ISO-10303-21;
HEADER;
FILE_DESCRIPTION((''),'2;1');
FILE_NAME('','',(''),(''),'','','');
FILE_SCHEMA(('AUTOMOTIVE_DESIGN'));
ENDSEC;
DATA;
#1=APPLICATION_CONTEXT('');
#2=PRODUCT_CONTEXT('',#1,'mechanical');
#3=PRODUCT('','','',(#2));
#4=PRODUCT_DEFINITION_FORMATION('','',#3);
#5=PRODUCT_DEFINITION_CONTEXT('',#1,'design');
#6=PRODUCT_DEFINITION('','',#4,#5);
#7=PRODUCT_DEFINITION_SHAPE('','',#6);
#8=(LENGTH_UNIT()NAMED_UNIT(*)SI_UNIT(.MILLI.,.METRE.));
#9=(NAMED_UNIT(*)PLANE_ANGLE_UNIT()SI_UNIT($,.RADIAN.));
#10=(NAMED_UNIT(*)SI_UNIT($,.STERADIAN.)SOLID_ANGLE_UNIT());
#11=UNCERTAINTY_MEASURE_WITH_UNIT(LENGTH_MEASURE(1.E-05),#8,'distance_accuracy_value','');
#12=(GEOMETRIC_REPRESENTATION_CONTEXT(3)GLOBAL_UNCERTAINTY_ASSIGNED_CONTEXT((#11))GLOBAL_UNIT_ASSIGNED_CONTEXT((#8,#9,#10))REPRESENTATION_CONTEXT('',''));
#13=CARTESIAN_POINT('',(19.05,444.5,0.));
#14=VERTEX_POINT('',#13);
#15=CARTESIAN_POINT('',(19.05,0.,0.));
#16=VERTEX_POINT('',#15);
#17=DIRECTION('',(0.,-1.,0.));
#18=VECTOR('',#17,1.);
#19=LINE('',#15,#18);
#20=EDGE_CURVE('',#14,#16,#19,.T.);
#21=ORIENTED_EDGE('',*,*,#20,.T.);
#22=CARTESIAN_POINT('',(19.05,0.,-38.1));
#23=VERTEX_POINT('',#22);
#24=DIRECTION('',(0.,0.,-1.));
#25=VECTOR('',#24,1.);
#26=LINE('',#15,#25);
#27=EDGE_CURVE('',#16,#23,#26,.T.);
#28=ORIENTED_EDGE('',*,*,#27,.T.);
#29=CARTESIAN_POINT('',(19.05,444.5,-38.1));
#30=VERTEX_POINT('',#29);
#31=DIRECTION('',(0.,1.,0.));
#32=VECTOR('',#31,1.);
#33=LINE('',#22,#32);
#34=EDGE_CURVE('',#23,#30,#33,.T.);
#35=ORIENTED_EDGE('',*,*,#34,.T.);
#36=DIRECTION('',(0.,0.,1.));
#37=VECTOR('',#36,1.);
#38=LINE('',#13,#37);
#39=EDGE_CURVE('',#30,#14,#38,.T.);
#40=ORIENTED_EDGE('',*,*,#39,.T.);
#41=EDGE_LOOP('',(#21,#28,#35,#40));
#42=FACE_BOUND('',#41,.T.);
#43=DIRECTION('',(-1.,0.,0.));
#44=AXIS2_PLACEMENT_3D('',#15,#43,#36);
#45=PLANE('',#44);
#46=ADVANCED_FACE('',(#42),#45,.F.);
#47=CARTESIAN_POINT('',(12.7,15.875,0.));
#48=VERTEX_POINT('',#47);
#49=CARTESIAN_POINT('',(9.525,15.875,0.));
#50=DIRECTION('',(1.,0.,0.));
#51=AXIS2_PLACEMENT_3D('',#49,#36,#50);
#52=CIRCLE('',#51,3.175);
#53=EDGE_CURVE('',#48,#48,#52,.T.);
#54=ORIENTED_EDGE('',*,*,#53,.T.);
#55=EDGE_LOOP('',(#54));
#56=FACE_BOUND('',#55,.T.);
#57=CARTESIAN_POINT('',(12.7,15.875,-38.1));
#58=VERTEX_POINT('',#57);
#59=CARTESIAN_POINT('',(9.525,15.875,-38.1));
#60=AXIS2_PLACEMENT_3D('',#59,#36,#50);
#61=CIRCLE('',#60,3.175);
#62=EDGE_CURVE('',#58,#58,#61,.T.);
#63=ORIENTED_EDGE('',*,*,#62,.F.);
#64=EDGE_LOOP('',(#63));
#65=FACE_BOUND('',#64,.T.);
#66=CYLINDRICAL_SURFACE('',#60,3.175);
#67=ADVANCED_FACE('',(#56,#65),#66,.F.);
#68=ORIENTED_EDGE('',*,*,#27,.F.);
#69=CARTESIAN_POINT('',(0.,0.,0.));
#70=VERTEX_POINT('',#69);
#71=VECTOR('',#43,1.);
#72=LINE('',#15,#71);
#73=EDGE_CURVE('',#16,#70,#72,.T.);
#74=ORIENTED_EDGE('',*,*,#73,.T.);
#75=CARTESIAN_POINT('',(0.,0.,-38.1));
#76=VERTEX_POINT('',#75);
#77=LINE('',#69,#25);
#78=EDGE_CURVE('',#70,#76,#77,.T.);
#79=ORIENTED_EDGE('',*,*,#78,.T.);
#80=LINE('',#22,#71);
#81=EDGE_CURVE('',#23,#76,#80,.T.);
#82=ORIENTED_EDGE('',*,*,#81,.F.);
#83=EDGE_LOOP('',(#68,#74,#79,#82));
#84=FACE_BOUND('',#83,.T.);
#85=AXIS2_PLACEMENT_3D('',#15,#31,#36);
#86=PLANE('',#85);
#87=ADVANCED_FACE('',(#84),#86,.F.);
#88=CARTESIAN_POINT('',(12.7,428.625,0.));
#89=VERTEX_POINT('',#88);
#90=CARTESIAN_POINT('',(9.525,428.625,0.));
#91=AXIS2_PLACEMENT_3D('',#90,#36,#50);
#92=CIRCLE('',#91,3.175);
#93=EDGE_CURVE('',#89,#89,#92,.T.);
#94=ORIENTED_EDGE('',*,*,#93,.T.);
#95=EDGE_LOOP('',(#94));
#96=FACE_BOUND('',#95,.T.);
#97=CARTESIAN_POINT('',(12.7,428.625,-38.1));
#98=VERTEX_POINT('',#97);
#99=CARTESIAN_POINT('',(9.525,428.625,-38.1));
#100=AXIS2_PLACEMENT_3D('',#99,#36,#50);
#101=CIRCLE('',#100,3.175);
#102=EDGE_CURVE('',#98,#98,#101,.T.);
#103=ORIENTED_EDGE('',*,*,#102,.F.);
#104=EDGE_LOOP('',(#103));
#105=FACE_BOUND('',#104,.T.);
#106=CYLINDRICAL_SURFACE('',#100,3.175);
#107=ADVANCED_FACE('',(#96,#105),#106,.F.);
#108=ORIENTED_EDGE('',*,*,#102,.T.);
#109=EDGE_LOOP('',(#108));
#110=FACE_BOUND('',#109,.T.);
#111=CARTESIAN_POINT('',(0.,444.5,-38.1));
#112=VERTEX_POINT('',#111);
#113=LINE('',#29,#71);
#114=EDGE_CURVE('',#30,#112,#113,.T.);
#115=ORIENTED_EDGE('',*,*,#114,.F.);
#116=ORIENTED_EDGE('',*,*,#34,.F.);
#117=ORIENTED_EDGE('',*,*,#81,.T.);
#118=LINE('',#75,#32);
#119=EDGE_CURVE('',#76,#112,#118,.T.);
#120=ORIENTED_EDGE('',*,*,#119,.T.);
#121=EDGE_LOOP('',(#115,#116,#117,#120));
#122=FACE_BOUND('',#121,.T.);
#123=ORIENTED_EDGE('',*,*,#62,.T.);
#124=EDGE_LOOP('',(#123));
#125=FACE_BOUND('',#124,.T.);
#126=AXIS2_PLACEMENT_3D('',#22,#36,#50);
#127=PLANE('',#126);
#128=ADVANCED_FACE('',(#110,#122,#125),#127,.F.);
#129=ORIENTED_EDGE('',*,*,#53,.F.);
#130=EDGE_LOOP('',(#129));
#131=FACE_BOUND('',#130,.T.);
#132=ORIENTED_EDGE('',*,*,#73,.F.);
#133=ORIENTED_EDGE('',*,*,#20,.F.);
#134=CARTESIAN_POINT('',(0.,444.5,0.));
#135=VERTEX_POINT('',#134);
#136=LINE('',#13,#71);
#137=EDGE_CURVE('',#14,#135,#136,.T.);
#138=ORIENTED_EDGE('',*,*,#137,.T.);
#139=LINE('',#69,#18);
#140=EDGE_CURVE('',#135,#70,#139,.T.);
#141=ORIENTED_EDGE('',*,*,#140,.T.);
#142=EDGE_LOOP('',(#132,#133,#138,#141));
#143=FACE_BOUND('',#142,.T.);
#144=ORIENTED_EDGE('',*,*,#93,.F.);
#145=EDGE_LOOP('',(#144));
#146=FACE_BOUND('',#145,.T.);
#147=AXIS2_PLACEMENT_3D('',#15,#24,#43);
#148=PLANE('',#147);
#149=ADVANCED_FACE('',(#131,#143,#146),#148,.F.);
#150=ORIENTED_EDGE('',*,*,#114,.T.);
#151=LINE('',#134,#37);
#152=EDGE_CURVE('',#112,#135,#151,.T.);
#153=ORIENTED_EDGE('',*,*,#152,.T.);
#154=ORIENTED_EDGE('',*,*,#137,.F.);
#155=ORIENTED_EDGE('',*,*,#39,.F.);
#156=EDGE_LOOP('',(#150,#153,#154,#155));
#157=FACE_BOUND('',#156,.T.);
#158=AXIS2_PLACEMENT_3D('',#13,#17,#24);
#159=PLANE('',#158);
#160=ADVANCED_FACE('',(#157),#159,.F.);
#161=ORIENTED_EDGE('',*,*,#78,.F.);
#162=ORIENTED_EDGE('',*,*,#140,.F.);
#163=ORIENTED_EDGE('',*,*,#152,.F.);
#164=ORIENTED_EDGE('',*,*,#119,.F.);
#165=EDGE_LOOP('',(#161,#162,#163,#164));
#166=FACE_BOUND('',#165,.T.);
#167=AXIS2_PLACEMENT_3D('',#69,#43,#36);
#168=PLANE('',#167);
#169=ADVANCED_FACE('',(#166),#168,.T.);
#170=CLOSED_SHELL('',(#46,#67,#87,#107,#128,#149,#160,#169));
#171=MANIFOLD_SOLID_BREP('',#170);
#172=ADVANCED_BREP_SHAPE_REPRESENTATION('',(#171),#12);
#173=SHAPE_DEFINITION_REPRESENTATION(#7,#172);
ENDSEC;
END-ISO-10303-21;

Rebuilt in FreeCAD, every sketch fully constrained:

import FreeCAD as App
import Part
import Sketcher
Q = App.Units.Quantity


def add_polygon(sketch, points):
    """Adds a closed chain of lines whose ends are joined by coincident constraints."""
    first, n = sketch.GeometryCount, len(points)
    for a, b in zip(points, points[1:] + points[:1]):
        sketch.addGeometry(Part.LineSegment(App.Vector(*a, 0), App.Vector(*b, 0)), False)
    for i in range(n):
        sketch.addConstraint(Sketcher.Constraint("Coincident", first + i, 2, first + (i + 1) % n, 1))

doc = App.newDocument("Part")
body = doc.addObject("PartDesign::Body", "Body")

# Sketch on YZ plane
sketch1 = body.newObject("Sketcher::SketchObject", "Sketch")
sketch1.AttachmentSupport = (doc.getObject("YZ_Plane"), [""])
sketch1.MapMode = "FlatFace"
add_polygon(sketch1, [(444, 0), (0, 0), (0, -38), (444, -38)])  # lines 0-3
sketch1.addConstraint([
    Sketcher.Constraint("Horizontal", 0),
    Sketcher.Constraint("Vertical", 1),
    Sketcher.Constraint("Horizontal", 2),
    Sketcher.Constraint("Vertical", 3),
    Sketcher.Constraint("Coincident", 0, 2, -1, 1),
    Sketcher.Constraint("DistanceX", 0, 2, 0, 1, Q("17.5 in")),
    Sketcher.Constraint("DistanceY", 1, 2, 1, 1, Q("1.5 in")),
])
pad1 = body.newObject("PartDesign::Pad", "Pad")
pad1.Profile = sketch1
pad1.Length = Q("0.75 in")

# Sketch on XY plane
sketch2 = body.newObject("Sketcher::SketchObject", "Sketch001")
sketch2.AttachmentSupport = (doc.getObject("XY_Plane"), [""])
sketch2.MapMode = "FlatFace"
sketch2.addGeometry([
    Part.Circle(App.Vector(9.5, 15.9, 0), App.Vector(0, 0, 1), 3.2),
    Part.Circle(App.Vector(9.5, 428.6, 0), App.Vector(0, 0, 1), 3.2),
], False)
sketch2.addConstraint([
    Sketcher.Constraint("Equal", 0, 1),
    Sketcher.Constraint("Vertical", 0, 3, 1, 3),
    Sketcher.Constraint("Diameter", 0, Q("0.25 in")),
    Sketcher.Constraint("DistanceY", 0, 3, 1, 3, Q("16.25 in")),
    Sketcher.Constraint("DistanceX", -1, 1, 0, 3, Q("0.375 in")),
    Sketcher.Constraint("DistanceY", -1, 1, 0, 3, Q("0.625 in")),
])
pocket1 = body.newObject("PartDesign::Pocket", "Pocket")
pocket1.Profile = sketch2
pocket1.Type = "ThroughAll"

doc.recompute()
